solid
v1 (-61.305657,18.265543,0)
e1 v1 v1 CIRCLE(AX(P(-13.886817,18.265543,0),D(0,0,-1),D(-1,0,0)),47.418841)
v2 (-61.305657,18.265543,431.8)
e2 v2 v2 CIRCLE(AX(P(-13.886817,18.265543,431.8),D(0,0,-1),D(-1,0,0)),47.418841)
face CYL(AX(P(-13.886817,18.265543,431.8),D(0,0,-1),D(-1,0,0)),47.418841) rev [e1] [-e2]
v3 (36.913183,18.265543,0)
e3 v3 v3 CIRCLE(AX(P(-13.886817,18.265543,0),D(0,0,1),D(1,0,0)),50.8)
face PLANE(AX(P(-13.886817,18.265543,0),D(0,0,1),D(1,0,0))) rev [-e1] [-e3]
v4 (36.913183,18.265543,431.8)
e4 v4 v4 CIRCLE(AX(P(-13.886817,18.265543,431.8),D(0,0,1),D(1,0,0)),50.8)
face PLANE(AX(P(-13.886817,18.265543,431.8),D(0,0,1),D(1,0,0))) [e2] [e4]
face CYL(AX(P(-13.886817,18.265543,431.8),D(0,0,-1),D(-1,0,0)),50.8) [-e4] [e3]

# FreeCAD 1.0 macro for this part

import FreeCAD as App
import Part
import Sketcher
Q = App.Units.Quantity

doc = App.newDocument("Part")
body = doc.addObject("PartDesign::Body", "Body")

sketch1 = body.newObject("Sketcher::SketchObject", "Sketch")
sketch1.AttachmentSupport = (doc.getObject("XY_Plane"), [""])
sketch1.MapMode = "FlatFace"
sketch1.addGeometry(Part.Circle(App.Vector(-13.886817, 18.265543, 0), App.Vector(0, 0, 1), 50.8), False)
sketch1.addConstraint(Sketcher.Constraint("Diameter", 0, Q("4 in")))
sketch1.addConstraint(Sketcher.Constraint("DistanceX", 0, 3, -1, 1, Q("13.886817 mm")))
sketch1.addConstraint(Sketcher.Constraint("DistanceY", -1, 1, 0, 3, Q("18.265543 mm")))
pad1 = body.newObject("PartDesign::Pad", "Pad")
pad1.Profile = sketch1
pad1.Length = Q("17 in")

sketch2 = body.newObject("Sketcher::SketchObject", "Sketch001")
sketch2.AttachmentSupport = (doc.getObject("XY_Plane"), [""])
sketch2.MapMode = "FlatFace"
sketch2.addGeometry(Part.Circle(App.Vector(-13.886817, 18.265543, 0), App.Vector(0, 0, 1), 47.418841), False)
sketch2.addConstraint(Sketcher.Constraint("Diameter", 0, Q("94.837682 mm")))
sketch2.addConstraint(Sketcher.Constraint("DistanceX", 0, 3, -1, 1, Q("13.886817 mm")))
sketch2.addConstraint(Sketcher.Constraint("DistanceY", -1, 1, 0, 3, Q("18.265543 mm")))
pocket1 = body.newObject("PartDesign::Pocket", "Pocket")
pocket1.Profile = sketch2
pocket1.Length = Q("17 in")
pocket1.Reversed = True

doc.recompute()
